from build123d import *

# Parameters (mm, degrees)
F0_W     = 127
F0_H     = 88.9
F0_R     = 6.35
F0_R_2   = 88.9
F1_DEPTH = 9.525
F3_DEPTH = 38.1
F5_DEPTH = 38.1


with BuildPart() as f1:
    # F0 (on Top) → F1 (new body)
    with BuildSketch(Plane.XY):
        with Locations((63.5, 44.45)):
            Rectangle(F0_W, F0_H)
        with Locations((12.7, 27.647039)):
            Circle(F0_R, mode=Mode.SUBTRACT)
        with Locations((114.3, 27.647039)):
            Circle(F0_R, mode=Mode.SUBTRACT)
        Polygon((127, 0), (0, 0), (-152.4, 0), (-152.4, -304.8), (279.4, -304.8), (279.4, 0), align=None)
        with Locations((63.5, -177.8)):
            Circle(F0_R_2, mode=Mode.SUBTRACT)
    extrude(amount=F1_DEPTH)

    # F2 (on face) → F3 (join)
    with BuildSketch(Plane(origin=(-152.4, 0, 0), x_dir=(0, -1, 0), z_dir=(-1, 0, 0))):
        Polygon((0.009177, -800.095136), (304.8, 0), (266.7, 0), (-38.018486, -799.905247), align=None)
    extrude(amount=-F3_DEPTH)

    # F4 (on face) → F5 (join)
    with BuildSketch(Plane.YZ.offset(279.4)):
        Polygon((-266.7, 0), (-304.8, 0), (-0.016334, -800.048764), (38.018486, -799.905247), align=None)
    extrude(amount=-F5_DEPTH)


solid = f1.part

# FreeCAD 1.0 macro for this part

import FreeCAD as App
import Part
import Sketcher

V = App.Vector
Q = App.Units.Quantity


def add_polygon(sketch, points):
    """Adds a closed chain of lines whose ends are joined by coincident constraints."""
    first, n = sketch.GeometryCount, len(points)
    for a, b in zip(points, points[1:] + points[:1]):
        sketch.addGeometry(Part.LineSegment(App.Vector(*a, 0), App.Vector(*b, 0)), False)
    for i in range(n):
        sketch.addConstraint(Sketcher.Constraint("Coincident", first + i, 2, first + (i + 1) % n, 1))

doc = App.newDocument("Part")
body = doc.addObject("PartDesign::Body", "Body")

sketch1 = doc.addObject("Sketcher::SketchObject", "Sketch")
body.addObject(sketch1)
sketch1.AttachmentSupport = (doc.XY_Plane, [""])
sketch1.MapMode = "FlatFace"
add_polygon(sketch1, [(0, 89), (0, 0), (-152, 0), (-152, -305), (279, -305), (279, 0), (127, 0), (127, 89)])
sketch1.addGeometry(Part.Circle(V(64, -178, 0), V(0, 0, 1), 89), False)
sketch1.addGeometry(Part.Circle(V(13, 28, 0), V(0, 0, 1), 6), False)
sketch1.addGeometry(Part.Circle(V(114, 28, 0), V(0, 0, 1), 6), False)
sketch1.addConstraint([
    Sketcher.Constraint("Vertical", 0),
    Sketcher.Constraint("Horizontal", 1),
    Sketcher.Constraint("Vertical", 2),
    Sketcher.Constraint("Horizontal", 3),
    Sketcher.Constraint("Vertical", 4),
    Sketcher.Constraint("Horizontal", 5),
    Sketcher.Constraint("Vertical", 6),
    Sketcher.Constraint("Horizontal", 7),
    Sketcher.Constraint("Coincident", 0, 2, -1, 1),
    Sketcher.Constraint("Equal", 9, 10),
    Sketcher.Constraint("PointOnObject", 4, 2, -1),
    Sketcher.Constraint("Horizontal", 9, 3, 10, 3),
    Sketcher.Constraint("Equal", 1, 5),
    Sketcher.Constraint("Diameter", 8, Q("7 in")),
    Sketcher.Constraint("Diameter", 9, Q("0.5 in")),
    Sketcher.Constraint("DistanceX", 1, 2, 1, 1, Q("6 in")),
    Sketcher.Constraint("DistanceX", 3, 1, 3, 2, Q("17 in")),
    Sketcher.Constraint("DistanceY", 2, 2, 2, 1, Q("12 in")),
    Sketcher.Constraint("DistanceY", 0, 2, 0, 1, Q("3.5 in")),
    Sketcher.Constraint("DistanceY", 8, 3, -1, 1, Q("7 in")),
    Sketcher.Constraint("DistanceX", 9, 3, 8, 3, Q("2 in")),
    Sketcher.Constraint("DistanceX", 9, 3, 10, 3, Q("4 in")),
    Sketcher.Constraint("DistanceX", -1, 1, 8, 3, Q("2.5 in")),
    Sketcher.Constraint("DistanceY", -1, 1, 9, 3, 27.647039),
])
pad1 = doc.addObject("PartDesign::Pad", "Pad")
body.addObject(pad1)
pad1.Profile = sketch1
pad1.Length = Q("0.375 in")

sketch2 = doc.addObject("Sketcher::SketchObject", "Sketch001")
body.addObject(sketch2)
sketch2.AttachmentSupport = (doc.YZ_Plane, [""])
sketch2.MapMode = "FlatFace"
sketch2.AttachmentOffset = App.Placement(V(0, 0, -6 * 25.4), App.Rotation())
add_polygon(sketch2, [(0, -800), (-305, 0), (-267, 0), (38, -800)])
sketch2.addConstraint([
    Sketcher.Constraint("Horizontal", 1),
    Sketcher.Constraint("PointOnObject", 0, 2, -1),
    Sketcher.Constraint("Parallel", 0, 2),
    Sketcher.Constraint("DistanceX", 1, 1, 1, 2, Q("1.5 in")),
    Sketcher.Constraint("DistanceX", 0, 2, -1, 1, Q("12 in")),
    Sketcher.Constraint("Distance", 2, Q("33.7 in")),
    Sketcher.Constraint("Distance", 0, Q("33.708 in")),
    Sketcher.Constraint("DistanceX", -1, 1, 2, 2, 38.018486),
])
pad2 = doc.addObject("PartDesign::Pad", "Pad001")
body.addObject(pad2)
pad2.Profile = sketch2
pad2.Length = Q("1.5 in")

sketch3 = doc.addObject("Sketcher::SketchObject", "Sketch002")
body.addObject(sketch3)
sketch3.AttachmentSupport = (doc.YZ_Plane, [""])
sketch3.MapMode = "FlatFace"
sketch3.AttachmentOffset = App.Placement(V(0, 0, 11 * 25.4), App.Rotation())
add_polygon(sketch3, [(-267, 0), (-305, 0), (0, -800), (38, -800)])
sketch3.addConstraint([
    Sketcher.Constraint("Horizontal", 0),
    Sketcher.Constraint("PointOnObject", 0, 2, -1),
    Sketcher.Constraint("DistanceX", 0, 2, 0, 1, Q("1.5 in")),
    Sketcher.Constraint("DistanceX", 0, 2, -1, 1, Q("12 in")),
    Sketcher.Constraint("Distance", 3, Q("33.7 in")),
    Sketcher.Constraint("Distance", 1, 856.137318),
    Sketcher.Constraint("Distance", 2, 38.035091),
    Sketcher.Constraint("DistanceX", 1, 2, -1, 1, 0.016334),
])
pad3 = doc.addObject("PartDesign::Pad", "Pad002")
body.addObject(pad3)
pad3.Profile = sketch3
pad3.Length = Q("1.5 in")
pad3.Reversed = True

doc.recompute()
